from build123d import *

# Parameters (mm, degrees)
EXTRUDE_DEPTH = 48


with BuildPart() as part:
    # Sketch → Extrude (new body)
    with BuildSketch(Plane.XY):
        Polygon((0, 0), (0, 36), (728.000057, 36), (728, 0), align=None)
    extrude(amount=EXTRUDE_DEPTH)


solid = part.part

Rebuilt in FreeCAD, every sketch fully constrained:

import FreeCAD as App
import Part
import Sketcher
from FreeCAD import Vector
Q = App.Units.Quantity

doc = App.newDocument("Part")
body = doc.addObject("PartDesign::Body", "Body")

# Sketch on XY plane
sketch1 = body.newObject("Sketcher::SketchObject", "Sketch")
sketch1.AttachmentSupport = (doc.getObject("XY_Plane"), [""])
sketch1.MapMode = "FlatFace"
sketch1.addGeometry([
    Part.LineSegment(Vector(0, 36, 0), Vector(0, 0, 0)),
    Part.LineSegment(Vector(0, 0, 0), Vector(728, 0, 0)),
    Part.LineSegment(Vector(728, 0, 0), Vector(728.000057, 36, 0)),
    Part.LineSegment(Vector(728.000057, 36, 0), Vector(0, 36, 0)),
], False)
sketch1.addConstraint([
    Sketcher.Constraint("Coincident", 0, 2, 1, 1),
    Sketcher.Constraint("Coincident", 1, 2, 2, 1),
    Sketcher.Constraint("Coincident", 2, 2, 3, 1),
    Sketcher.Constraint("Coincident", 3, 2, 0, 1),
    Sketcher.Constraint("Vertical", 0),
    Sketcher.Constraint("Horizontal", 1),
    Sketcher.Constraint("Horizontal", 3),
    Sketcher.Constraint("Coincident", 0, 2, -1, 1),
    Sketcher.Constraint("DistanceX", 1, 1, 1, 2, Q("728 mm")),
    Sketcher.Constraint("DistanceY", 0, 2, 0, 1, Q("36 mm")),
    Sketcher.Constraint("DistanceX", 3, 2, 3, 1, Q("728.000057 mm")),
])
pad1 = body.newObject("PartDesign::Pad", "Pad")
pad1.Profile = sketch1
pad1.Length = 48

doc.recompute()
